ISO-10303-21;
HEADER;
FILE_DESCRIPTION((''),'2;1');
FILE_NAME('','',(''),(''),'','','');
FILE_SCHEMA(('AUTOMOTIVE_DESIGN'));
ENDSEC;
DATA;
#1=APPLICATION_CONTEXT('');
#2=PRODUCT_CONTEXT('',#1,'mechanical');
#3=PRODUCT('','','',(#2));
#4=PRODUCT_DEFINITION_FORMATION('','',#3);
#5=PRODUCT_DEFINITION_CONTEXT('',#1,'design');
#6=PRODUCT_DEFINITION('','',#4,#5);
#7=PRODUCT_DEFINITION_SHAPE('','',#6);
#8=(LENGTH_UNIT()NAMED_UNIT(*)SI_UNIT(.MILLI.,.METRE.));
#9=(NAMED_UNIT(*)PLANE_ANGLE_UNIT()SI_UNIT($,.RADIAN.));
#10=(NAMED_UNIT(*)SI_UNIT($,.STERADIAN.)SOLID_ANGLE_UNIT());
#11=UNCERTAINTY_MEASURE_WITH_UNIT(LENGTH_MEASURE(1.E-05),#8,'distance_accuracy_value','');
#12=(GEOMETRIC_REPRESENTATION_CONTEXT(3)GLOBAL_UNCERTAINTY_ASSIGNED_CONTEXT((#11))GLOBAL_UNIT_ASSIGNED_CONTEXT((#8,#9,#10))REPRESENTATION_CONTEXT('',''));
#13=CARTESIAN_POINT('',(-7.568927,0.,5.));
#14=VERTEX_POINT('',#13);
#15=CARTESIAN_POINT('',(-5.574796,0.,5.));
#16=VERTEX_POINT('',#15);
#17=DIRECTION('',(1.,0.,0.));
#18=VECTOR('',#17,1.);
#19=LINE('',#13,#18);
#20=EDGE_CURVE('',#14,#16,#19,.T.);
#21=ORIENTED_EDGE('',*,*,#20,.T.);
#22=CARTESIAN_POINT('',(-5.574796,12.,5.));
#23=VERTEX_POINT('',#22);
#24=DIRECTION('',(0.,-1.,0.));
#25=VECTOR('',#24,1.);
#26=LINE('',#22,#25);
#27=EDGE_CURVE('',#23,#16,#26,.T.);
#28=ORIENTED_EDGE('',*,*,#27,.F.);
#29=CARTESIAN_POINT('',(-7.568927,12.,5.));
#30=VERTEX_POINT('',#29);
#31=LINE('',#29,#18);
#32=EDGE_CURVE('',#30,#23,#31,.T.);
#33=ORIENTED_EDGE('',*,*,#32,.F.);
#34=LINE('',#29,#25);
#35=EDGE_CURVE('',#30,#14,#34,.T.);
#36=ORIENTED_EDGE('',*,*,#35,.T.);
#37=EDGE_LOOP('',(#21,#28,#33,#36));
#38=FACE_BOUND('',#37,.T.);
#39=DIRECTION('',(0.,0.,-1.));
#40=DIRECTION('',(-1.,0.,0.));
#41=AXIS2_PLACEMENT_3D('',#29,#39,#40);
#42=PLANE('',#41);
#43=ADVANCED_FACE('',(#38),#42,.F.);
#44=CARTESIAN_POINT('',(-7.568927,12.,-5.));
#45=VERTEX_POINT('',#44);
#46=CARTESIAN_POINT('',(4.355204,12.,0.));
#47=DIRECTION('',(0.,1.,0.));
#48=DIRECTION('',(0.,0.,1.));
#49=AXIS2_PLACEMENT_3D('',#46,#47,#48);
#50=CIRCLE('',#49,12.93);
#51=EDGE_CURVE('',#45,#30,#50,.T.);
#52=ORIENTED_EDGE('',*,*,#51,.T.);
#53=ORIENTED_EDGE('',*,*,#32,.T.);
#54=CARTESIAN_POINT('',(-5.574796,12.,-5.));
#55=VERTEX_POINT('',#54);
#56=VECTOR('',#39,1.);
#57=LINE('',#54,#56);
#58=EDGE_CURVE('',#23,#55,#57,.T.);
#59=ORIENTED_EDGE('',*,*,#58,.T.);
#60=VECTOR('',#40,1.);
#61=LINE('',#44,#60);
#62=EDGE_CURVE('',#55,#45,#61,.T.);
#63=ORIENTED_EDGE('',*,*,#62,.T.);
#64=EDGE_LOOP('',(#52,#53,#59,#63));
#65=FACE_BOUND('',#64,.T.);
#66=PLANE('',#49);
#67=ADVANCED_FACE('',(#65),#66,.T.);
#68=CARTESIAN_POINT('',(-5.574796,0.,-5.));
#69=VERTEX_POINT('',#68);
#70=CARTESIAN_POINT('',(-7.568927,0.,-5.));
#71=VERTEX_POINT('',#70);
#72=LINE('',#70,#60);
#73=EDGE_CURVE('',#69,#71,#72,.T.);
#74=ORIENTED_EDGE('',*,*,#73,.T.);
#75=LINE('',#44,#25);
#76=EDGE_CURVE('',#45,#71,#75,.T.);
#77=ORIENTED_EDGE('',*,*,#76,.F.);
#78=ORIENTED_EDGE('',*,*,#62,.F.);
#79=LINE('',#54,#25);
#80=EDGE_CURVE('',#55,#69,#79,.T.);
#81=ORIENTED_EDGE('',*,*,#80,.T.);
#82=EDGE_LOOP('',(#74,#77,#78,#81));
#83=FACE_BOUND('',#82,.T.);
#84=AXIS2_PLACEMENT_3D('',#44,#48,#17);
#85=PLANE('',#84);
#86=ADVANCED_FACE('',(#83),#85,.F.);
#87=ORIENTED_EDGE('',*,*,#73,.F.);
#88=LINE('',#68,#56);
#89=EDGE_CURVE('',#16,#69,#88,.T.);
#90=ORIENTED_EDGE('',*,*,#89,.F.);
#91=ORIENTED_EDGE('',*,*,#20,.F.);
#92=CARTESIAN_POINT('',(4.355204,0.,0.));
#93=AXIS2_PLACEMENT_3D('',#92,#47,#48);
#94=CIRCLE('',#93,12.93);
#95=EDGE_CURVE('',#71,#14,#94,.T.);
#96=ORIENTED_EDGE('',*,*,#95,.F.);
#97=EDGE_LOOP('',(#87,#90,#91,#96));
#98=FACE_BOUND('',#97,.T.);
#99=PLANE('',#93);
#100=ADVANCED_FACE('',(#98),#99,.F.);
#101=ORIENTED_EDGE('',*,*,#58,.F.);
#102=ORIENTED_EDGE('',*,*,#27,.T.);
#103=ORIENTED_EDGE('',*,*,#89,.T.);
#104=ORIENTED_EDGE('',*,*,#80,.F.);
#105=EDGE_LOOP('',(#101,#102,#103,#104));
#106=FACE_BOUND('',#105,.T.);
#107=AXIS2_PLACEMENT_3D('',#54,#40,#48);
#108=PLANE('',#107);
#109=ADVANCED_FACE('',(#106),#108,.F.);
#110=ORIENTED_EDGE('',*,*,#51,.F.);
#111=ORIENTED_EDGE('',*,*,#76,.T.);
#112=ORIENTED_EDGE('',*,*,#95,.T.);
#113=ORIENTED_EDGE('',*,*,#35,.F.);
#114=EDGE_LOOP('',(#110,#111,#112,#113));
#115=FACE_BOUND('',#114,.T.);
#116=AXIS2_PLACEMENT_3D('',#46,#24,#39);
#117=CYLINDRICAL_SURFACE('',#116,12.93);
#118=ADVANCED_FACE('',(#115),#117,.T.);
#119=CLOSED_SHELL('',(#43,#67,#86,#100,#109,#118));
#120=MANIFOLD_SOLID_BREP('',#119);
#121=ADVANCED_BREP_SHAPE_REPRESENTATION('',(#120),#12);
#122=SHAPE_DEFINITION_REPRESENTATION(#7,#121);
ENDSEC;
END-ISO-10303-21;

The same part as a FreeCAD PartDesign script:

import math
import FreeCAD as App
import Part
import Sketcher
from FreeCAD import Vector

doc = App.newDocument("Part")
body = doc.addObject("PartDesign::Body", "Body")

# Sketch on XZ plane
sketch1 = doc.addObject("Sketcher::SketchObject", "Sketch")
body.addObject(sketch1)
sketch1.AttachmentSupport = (doc.XZ_Plane, [""])
sketch1.MapMode = "FlatFace"
sketch1.addGeometry([
    Part.LineSegment(Vector(-5.6, -5, 0), Vector(-7.6, -5, 0)),
    Part.ArcOfCircle(Part.Circle(Vector(4.4, 0, 0), Vector(0, 0, 1), 12.9), math.radians(157), math.radians(203)),
    Part.LineSegment(Vector(-7.6, 5, 0), Vector(-5.6, 5, 0)),
    Part.LineSegment(Vector(-5.6, 5, 0), Vector(-5.6, -5, 0)),
], False)
sketch1.addConstraint([
    Sketcher.Constraint("Coincident", 0, 2, 1, 2),
    Sketcher.Constraint("Coincident", 1, 1, 2, 1),
    Sketcher.Constraint("Coincident", 2, 2, 3, 1),
    Sketcher.Constraint("Coincident", 3, 2, 0, 1),
    Sketcher.Constraint("Horizontal", 0),
    Sketcher.Constraint("Horizontal", 2),
    Sketcher.Constraint("Vertical", 3),
    Sketcher.Constraint("Symmetric", 0, 2, 1, 1, -1),
    Sketcher.Constraint("DistanceY", 3, 2, 3, 1, 10.0),
    Sketcher.Constraint("Radius", 1, 12.93),
    Sketcher.Constraint("DistanceX", 2, 2, 1, 3, 9.93),
    Sketcher.Constraint("DistanceX", -1, 1, 1, 3, 4.355204),
])
pad1 = doc.addObject("PartDesign::Pad", "Pad")
body.addObject(pad1)
pad1.Profile = sketch1
pad1.Length = 12
pad1.Reversed = True

doc.recompute()
